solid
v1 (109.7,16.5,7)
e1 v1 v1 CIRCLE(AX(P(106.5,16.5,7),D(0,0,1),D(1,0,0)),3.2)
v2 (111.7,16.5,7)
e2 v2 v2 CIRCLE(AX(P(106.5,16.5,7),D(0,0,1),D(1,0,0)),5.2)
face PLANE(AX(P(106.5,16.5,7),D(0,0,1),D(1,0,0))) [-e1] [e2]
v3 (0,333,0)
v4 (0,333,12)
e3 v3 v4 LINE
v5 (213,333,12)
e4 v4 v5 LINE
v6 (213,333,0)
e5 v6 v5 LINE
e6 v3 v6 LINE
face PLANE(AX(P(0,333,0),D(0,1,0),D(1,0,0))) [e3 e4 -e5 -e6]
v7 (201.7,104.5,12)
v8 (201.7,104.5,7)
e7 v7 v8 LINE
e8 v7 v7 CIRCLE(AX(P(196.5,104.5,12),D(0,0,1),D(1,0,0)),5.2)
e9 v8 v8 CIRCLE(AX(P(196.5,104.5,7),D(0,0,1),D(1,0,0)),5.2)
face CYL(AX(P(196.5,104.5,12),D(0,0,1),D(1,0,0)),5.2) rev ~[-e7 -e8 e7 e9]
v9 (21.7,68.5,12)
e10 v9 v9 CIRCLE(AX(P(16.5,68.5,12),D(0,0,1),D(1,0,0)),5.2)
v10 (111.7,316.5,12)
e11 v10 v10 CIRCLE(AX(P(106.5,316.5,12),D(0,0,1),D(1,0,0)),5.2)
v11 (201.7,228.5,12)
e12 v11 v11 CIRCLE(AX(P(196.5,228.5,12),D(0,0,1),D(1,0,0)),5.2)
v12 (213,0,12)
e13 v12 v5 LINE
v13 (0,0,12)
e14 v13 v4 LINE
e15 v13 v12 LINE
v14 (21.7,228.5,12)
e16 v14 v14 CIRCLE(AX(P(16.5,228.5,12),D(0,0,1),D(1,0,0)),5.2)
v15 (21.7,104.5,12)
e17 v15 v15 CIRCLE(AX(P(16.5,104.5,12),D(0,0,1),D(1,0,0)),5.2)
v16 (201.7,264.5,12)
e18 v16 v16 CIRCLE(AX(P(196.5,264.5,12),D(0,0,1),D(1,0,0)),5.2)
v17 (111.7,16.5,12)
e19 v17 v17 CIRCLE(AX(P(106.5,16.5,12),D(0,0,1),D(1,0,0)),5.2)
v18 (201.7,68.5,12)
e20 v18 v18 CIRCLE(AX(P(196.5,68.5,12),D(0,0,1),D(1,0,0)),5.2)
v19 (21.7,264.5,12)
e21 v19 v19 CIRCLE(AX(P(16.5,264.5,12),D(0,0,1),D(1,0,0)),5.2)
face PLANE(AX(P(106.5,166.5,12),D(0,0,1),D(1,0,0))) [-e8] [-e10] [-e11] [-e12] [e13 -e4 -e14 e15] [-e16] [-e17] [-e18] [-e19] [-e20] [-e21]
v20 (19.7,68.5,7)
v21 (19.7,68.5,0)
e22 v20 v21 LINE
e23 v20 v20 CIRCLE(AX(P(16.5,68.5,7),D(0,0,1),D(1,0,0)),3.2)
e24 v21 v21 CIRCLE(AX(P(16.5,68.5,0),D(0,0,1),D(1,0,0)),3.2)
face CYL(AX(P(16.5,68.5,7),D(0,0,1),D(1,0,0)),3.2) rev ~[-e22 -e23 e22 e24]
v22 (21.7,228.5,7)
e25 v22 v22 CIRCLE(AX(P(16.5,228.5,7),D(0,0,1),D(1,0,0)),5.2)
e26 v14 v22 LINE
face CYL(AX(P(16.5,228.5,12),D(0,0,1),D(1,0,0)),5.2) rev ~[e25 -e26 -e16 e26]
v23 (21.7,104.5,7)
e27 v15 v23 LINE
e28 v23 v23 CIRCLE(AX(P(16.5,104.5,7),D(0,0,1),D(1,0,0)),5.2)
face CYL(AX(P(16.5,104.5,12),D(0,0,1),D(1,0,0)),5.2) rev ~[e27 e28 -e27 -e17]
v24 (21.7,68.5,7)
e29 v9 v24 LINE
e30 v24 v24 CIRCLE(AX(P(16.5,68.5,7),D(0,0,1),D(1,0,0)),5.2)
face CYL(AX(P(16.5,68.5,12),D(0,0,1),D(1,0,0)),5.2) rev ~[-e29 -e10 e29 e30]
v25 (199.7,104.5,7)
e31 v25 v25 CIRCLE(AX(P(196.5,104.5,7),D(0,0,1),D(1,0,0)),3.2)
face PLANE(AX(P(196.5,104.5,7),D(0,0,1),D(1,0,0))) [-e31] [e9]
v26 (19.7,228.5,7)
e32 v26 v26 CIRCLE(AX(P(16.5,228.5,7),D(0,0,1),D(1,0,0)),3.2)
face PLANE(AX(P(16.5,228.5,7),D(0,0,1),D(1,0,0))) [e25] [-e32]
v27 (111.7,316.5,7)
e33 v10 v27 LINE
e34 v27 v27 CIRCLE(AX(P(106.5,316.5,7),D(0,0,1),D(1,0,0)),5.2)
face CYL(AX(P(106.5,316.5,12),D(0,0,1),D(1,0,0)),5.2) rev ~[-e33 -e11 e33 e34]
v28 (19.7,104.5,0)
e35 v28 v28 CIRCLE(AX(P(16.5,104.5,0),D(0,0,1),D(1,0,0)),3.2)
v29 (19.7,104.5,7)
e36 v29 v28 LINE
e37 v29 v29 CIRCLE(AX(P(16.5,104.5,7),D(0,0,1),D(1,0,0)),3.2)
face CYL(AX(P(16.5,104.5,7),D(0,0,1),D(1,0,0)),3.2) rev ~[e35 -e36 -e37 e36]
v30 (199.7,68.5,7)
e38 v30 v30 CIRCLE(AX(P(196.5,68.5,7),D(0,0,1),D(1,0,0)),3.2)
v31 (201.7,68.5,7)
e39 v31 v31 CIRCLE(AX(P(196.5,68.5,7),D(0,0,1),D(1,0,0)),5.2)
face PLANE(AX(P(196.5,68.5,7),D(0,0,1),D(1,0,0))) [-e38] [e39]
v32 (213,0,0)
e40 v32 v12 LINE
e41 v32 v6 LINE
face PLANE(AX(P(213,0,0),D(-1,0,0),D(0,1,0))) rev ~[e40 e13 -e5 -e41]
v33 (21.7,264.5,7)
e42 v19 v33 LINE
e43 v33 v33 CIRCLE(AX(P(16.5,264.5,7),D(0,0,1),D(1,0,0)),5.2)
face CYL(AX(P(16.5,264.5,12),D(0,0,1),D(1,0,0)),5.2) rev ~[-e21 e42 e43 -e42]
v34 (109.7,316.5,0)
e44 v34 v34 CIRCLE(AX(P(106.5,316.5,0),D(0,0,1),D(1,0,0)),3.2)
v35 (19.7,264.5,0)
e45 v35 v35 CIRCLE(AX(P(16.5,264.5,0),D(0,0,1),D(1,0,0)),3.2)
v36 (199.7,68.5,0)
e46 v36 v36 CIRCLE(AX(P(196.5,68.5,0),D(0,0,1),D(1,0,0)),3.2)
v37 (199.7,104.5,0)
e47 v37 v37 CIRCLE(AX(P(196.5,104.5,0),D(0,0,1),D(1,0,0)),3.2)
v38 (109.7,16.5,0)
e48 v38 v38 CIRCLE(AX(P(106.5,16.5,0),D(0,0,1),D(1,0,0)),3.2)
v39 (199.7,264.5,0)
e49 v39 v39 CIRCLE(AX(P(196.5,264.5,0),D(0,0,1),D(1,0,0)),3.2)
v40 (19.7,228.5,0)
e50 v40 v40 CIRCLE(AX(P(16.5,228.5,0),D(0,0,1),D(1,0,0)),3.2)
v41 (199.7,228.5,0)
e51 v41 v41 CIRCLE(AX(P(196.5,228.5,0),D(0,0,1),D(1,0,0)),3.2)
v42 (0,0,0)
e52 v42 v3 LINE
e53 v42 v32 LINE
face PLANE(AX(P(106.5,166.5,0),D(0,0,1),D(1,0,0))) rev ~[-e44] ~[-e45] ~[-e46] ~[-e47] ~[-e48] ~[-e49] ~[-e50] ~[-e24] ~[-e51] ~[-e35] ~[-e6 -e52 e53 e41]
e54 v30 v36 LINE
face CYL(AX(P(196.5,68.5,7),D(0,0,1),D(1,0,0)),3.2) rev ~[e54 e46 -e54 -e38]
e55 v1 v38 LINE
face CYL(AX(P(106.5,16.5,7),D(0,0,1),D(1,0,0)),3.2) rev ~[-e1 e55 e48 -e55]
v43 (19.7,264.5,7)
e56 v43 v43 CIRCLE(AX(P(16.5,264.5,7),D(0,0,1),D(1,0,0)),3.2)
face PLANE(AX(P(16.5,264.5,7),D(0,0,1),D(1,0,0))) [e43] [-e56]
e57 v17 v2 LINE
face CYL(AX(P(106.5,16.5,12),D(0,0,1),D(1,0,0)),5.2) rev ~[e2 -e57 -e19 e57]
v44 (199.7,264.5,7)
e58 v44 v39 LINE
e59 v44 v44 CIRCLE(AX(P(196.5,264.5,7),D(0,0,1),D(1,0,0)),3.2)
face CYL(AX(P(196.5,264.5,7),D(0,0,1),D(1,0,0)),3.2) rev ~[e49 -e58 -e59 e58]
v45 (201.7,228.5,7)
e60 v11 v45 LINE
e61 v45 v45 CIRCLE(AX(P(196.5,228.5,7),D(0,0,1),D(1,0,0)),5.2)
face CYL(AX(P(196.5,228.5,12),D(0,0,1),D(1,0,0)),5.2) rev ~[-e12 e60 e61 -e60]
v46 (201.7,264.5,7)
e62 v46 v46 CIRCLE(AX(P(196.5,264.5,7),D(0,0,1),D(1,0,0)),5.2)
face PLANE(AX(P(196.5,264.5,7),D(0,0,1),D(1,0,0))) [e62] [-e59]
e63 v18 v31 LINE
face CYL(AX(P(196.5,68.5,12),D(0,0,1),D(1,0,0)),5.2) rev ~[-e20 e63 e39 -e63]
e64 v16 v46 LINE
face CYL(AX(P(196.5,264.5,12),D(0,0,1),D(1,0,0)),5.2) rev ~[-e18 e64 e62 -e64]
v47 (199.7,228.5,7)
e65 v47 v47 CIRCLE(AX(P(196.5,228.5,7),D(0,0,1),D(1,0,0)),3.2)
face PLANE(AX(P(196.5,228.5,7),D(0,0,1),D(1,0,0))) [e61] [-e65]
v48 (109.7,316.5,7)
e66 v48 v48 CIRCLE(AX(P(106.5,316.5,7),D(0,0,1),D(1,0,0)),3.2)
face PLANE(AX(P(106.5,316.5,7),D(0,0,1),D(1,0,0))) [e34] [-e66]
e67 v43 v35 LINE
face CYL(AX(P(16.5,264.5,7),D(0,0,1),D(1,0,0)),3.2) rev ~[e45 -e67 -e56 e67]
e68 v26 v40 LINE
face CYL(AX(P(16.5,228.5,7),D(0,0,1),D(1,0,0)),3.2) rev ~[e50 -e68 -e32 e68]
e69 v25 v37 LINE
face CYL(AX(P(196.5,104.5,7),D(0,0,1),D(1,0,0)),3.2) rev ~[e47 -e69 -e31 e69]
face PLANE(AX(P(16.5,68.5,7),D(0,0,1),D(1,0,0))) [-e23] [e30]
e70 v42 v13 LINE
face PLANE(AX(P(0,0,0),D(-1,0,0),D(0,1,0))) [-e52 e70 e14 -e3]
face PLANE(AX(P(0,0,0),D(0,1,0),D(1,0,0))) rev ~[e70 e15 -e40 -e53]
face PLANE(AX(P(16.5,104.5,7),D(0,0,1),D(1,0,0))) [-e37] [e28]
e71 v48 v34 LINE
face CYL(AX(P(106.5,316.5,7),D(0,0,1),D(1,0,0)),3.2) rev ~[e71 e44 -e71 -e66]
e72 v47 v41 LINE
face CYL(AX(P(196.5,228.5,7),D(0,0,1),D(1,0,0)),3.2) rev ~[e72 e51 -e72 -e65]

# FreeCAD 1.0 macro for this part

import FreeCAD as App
import Part
import Sketcher
from FreeCAD import Vector
Q = App.Units.Quantity

doc = App.newDocument("Part")
body = doc.addObject("PartDesign::Body", "Body")

# Sketch on XY plane
sketch1 = body.newObject("Sketcher::SketchObject", "Sketch")
sketch1.AttachmentSupport = (doc.getObject("XY_Plane"), [""])
sketch1.MapMode = "FlatFace"
sketch1.addGeometry([
    Part.LineSegment(Vector(0, 333, 0), Vector(0, 0, 0)),
    Part.LineSegment(Vector(0, 0, 0), Vector(213, 0, 0)),
    Part.LineSegment(Vector(213, 0, 0), Vector(213, 333, 0)),
    Part.LineSegment(Vector(213, 333, 0), Vector(0, 333, 0)),
], False)
sketch1.addConstraint([
    Sketcher.Constraint("Coincident", 0, 2, 1, 1),
    Sketcher.Constraint("Coincident", 1, 2, 2, 1),
    Sketcher.Constraint("Coincident", 2, 2, 3, 1),
    Sketcher.Constraint("Coincident", 3, 2, 0, 1),
    Sketcher.Constraint("Vertical", 0),
    Sketcher.Constraint("Horizontal", 1),
    Sketcher.Constraint("Vertical", 2),
    Sketcher.Constraint("Horizontal", 3),
    Sketcher.Constraint("Coincident", 0, 2, -1, 1),
    Sketcher.Constraint("DistanceX", 1, 1, 1, 2, Q("213 mm")),
    Sketcher.Constraint("DistanceY", 0, 2, 0, 1, Q("333 mm")),
])
pad1 = body.newObject("PartDesign::Pad", "Pad")
pad1.Profile = sketch1
pad1.Length = 12

# Sketch on XY plane
sketch2 = body.newObject("Sketcher::SketchObject", "Sketch001")
sketch2.AttachmentSupport = (doc.getObject("XY_Plane"), [""])
sketch2.MapMode = "FlatFace"
sketch2.AttachmentOffset = App.Placement(Vector(0, 0, 12), App.Rotation())
sketch2.addGeometry([
    Part.Circle(Vector(16, 264, 0), Vector(0, 0, 1), 5),  # 0
    Part.Circle(Vector(16, 228, 0), Vector(0, 0, 1), 5),  # 1
    Part.Circle(Vector(16, 104, 0), Vector(0, 0, 1), 5),  # 2
    Part.Circle(Vector(16, 68, 0), Vector(0, 0, 1), 5),  # 3
    Part.Circle(Vector(196, 264, 0), Vector(0, 0, 1), 5),  # 4
    Part.Circle(Vector(196, 228, 0), Vector(0, 0, 1), 5),  # 5
    Part.Circle(Vector(196, 104, 0), Vector(0, 0, 1), 5),  # 6
    Part.Circle(Vector(196, 68, 0), Vector(0, 0, 1), 5),  # 7
    Part.Circle(Vector(106, 316, 0), Vector(0, 0, 1), 5),  # 8
    Part.Circle(Vector(106, 16, 0), Vector(0, 0, 1), 5),  # 9
], False)
sketch2.addConstraint([
    Sketcher.Constraint("Equal", 0, 1),
    Sketcher.Constraint("Equal", 1, 2),
    Sketcher.Constraint("Equal", 2, 3),
    Sketcher.Constraint("Equal", 3, 4),
    Sketcher.Constraint("Equal", 4, 5),
    Sketcher.Constraint("Equal", 5, 6),
    Sketcher.Constraint("Equal", 6, 7),
    Sketcher.Constraint("Equal", 7, 8),
    Sketcher.Constraint("Equal", 8, 9),
    Sketcher.Constraint("Horizontal", 0, 3, 4, 3),
    Sketcher.Constraint("Horizontal", 1, 3, 5, 3),
    Sketcher.Constraint("Horizontal", 2, 3, 6, 3),
    Sketcher.Constraint("Horizontal", 3, 3, 7, 3),
    Sketcher.Constraint("Vertical", 0, 3, 1, 3),
    Sketcher.Constraint("Vertical", 1, 3, 2, 3),
    Sketcher.Constraint("Vertical", 2, 3, 3, 3),
    Sketcher.Constraint("Vertical", 4, 3, 5, 3),
    Sketcher.Constraint("Vertical", 5, 3, 6, 3),
    Sketcher.Constraint("Vertical", 6, 3, 7, 3),
    Sketcher.Constraint("Vertical", 8, 3, 9, 3),
    Sketcher.Constraint("Diameter", 0, Q("10.4 mm")),
    Sketcher.Constraint("DistanceY", 1, 3, 0, 3, Q("36 mm")),
    Sketcher.Constraint("DistanceY", 2, 3, 1, 3, Q("124 mm")),
    Sketcher.Constraint("DistanceY", 3, 3, 2, 3, Q("36 mm")),
    Sketcher.Constraint("DistanceX", 0, 3, 4, 3, Q("180 mm")),
    Sketcher.Constraint("DistanceX", 0, 3, 8, 3, Q("90 mm")),
    Sketcher.Constraint("DistanceY", 0, 3, 8, 3, Q("52 mm")),
    Sketcher.Constraint("DistanceY", 9, 3, 3, 3, Q("52 mm")),
    Sketcher.Constraint("DistanceX", -1, 1, 0, 3, Q("16.5 mm")),
    Sketcher.Constraint("DistanceY", -1, 1, 0, 3, Q("264.5 mm")),
])
pocket1 = body.newObject("PartDesign::Pocket", "Pocket")
pocket1.Profile = sketch2
pocket1.Length = 5

# Sketch on XY plane
sketch3 = body.newObject("Sketcher::SketchObject", "Sketch002")
sketch3.AttachmentSupport = (doc.getObject("XY_Plane"), [""])
sketch3.MapMode = "FlatFace"
sketch3.AttachmentOffset = App.Placement(Vector(0, 0, 7), App.Rotation())
sketch3.addGeometry([
    Part.Circle(Vector(106.5, 316.5, 0), Vector(0, 0, 1), 3.2),  # 0
    Part.Circle(Vector(16.5, 264.5, 0), Vector(0, 0, 1), 3.2),  # 1
    Part.Circle(Vector(16.5, 228.5, 0), Vector(0, 0, 1), 3.2),  # 2
    Part.Circle(Vector(16.5, 104.5, 0), Vector(0, 0, 1), 3.2),  # 3
    Part.Circle(Vector(16.5, 68.5, 0), Vector(0, 0, 1), 3.2),  # 4
    Part.Circle(Vector(106.5, 16.5, 0), Vector(0, 0, 1), 3.2),  # 5
    Part.Circle(Vector(196.5, 68.5, 0), Vector(0, 0, 1), 3.2),  # 6
    Part.Circle(Vector(196.5, 104.5, 0), Vector(0, 0, 1), 3.2),  # 7
    Part.Circle(Vector(196.5, 228.5, 0), Vector(0, 0, 1), 3.2),  # 8
    Part.Circle(Vector(196.5, 264.5, 0), Vector(0, 0, 1), 3.2),  # 9
], False)
sketch3.addConstraint([
    Sketcher.Constraint("Equal", 0, 1),
    Sketcher.Constraint("Equal", 1, 2),
    Sketcher.Constraint("Equal", 2, 3),
    Sketcher.Constraint("Equal", 3, 4),
    Sketcher.Constraint("Equal", 4, 5),
    Sketcher.Constraint("Equal", 5, 6),
    Sketcher.Constraint("Equal", 6, 7),
    Sketcher.Constraint("Equal", 7, 8),
    Sketcher.Constraint("Equal", 8, 9),
    Sketcher.Constraint("Horizontal", 4, 3, 6, 3),
    Sketcher.Constraint("Horizontal", 3, 3, 7, 3),
    Sketcher.Constraint("Horizontal", 2, 3, 8, 3),
    Sketcher.Constraint("Horizontal", 1, 3, 9, 3),
    Sketcher.Constraint("Vertical", 1, 3, 2, 3),
    Sketcher.Constraint("Vertical", 2, 3, 3, 3),
    Sketcher.Constraint("Vertical", 3, 3, 4, 3),
    Sketcher.Constraint("Vertical", 0, 3, 5, 3),
    Sketcher.Constraint("Vertical", 6, 3, 7, 3),
    Sketcher.Constraint("Vertical", 7, 3, 8, 3),
    Sketcher.Constraint("Vertical", 8, 3, 9, 3),
    Sketcher.Constraint("Diameter", 0, Q("6.4 mm")),
    Sketcher.Constraint("DistanceX", 1, 3, 0, 3, Q("90 mm")),
    Sketcher.Constraint("DistanceY", 1, 3, 0, 3, Q("52 mm")),
    Sketcher.Constraint("DistanceY", 2, 3, 1, 3, Q("36 mm")),
    Sketcher.Constraint("DistanceY", 3, 3, 2, 3, Q("124 mm")),
    Sketcher.Constraint("DistanceY", 4, 3, 3, 3, Q("36 mm")),
    Sketcher.Constraint("DistanceY", 5, 3, 4, 3, Q("52 mm")),
    Sketcher.Constraint("DistanceX", 5, 3, 6, 3, Q("90 mm")),
    Sketcher.Constraint("DistanceX", -1, 1, 0, 3, Q("106.5 mm")),
    Sketcher.Constraint("DistanceY", -1, 1, 0, 3, Q("316.5 mm")),
])
pocket2 = body.newObject("PartDesign::Pocket", "Pocket001")
pocket2.Profile = sketch3
pocket2.Length = 7

doc.recompute()
